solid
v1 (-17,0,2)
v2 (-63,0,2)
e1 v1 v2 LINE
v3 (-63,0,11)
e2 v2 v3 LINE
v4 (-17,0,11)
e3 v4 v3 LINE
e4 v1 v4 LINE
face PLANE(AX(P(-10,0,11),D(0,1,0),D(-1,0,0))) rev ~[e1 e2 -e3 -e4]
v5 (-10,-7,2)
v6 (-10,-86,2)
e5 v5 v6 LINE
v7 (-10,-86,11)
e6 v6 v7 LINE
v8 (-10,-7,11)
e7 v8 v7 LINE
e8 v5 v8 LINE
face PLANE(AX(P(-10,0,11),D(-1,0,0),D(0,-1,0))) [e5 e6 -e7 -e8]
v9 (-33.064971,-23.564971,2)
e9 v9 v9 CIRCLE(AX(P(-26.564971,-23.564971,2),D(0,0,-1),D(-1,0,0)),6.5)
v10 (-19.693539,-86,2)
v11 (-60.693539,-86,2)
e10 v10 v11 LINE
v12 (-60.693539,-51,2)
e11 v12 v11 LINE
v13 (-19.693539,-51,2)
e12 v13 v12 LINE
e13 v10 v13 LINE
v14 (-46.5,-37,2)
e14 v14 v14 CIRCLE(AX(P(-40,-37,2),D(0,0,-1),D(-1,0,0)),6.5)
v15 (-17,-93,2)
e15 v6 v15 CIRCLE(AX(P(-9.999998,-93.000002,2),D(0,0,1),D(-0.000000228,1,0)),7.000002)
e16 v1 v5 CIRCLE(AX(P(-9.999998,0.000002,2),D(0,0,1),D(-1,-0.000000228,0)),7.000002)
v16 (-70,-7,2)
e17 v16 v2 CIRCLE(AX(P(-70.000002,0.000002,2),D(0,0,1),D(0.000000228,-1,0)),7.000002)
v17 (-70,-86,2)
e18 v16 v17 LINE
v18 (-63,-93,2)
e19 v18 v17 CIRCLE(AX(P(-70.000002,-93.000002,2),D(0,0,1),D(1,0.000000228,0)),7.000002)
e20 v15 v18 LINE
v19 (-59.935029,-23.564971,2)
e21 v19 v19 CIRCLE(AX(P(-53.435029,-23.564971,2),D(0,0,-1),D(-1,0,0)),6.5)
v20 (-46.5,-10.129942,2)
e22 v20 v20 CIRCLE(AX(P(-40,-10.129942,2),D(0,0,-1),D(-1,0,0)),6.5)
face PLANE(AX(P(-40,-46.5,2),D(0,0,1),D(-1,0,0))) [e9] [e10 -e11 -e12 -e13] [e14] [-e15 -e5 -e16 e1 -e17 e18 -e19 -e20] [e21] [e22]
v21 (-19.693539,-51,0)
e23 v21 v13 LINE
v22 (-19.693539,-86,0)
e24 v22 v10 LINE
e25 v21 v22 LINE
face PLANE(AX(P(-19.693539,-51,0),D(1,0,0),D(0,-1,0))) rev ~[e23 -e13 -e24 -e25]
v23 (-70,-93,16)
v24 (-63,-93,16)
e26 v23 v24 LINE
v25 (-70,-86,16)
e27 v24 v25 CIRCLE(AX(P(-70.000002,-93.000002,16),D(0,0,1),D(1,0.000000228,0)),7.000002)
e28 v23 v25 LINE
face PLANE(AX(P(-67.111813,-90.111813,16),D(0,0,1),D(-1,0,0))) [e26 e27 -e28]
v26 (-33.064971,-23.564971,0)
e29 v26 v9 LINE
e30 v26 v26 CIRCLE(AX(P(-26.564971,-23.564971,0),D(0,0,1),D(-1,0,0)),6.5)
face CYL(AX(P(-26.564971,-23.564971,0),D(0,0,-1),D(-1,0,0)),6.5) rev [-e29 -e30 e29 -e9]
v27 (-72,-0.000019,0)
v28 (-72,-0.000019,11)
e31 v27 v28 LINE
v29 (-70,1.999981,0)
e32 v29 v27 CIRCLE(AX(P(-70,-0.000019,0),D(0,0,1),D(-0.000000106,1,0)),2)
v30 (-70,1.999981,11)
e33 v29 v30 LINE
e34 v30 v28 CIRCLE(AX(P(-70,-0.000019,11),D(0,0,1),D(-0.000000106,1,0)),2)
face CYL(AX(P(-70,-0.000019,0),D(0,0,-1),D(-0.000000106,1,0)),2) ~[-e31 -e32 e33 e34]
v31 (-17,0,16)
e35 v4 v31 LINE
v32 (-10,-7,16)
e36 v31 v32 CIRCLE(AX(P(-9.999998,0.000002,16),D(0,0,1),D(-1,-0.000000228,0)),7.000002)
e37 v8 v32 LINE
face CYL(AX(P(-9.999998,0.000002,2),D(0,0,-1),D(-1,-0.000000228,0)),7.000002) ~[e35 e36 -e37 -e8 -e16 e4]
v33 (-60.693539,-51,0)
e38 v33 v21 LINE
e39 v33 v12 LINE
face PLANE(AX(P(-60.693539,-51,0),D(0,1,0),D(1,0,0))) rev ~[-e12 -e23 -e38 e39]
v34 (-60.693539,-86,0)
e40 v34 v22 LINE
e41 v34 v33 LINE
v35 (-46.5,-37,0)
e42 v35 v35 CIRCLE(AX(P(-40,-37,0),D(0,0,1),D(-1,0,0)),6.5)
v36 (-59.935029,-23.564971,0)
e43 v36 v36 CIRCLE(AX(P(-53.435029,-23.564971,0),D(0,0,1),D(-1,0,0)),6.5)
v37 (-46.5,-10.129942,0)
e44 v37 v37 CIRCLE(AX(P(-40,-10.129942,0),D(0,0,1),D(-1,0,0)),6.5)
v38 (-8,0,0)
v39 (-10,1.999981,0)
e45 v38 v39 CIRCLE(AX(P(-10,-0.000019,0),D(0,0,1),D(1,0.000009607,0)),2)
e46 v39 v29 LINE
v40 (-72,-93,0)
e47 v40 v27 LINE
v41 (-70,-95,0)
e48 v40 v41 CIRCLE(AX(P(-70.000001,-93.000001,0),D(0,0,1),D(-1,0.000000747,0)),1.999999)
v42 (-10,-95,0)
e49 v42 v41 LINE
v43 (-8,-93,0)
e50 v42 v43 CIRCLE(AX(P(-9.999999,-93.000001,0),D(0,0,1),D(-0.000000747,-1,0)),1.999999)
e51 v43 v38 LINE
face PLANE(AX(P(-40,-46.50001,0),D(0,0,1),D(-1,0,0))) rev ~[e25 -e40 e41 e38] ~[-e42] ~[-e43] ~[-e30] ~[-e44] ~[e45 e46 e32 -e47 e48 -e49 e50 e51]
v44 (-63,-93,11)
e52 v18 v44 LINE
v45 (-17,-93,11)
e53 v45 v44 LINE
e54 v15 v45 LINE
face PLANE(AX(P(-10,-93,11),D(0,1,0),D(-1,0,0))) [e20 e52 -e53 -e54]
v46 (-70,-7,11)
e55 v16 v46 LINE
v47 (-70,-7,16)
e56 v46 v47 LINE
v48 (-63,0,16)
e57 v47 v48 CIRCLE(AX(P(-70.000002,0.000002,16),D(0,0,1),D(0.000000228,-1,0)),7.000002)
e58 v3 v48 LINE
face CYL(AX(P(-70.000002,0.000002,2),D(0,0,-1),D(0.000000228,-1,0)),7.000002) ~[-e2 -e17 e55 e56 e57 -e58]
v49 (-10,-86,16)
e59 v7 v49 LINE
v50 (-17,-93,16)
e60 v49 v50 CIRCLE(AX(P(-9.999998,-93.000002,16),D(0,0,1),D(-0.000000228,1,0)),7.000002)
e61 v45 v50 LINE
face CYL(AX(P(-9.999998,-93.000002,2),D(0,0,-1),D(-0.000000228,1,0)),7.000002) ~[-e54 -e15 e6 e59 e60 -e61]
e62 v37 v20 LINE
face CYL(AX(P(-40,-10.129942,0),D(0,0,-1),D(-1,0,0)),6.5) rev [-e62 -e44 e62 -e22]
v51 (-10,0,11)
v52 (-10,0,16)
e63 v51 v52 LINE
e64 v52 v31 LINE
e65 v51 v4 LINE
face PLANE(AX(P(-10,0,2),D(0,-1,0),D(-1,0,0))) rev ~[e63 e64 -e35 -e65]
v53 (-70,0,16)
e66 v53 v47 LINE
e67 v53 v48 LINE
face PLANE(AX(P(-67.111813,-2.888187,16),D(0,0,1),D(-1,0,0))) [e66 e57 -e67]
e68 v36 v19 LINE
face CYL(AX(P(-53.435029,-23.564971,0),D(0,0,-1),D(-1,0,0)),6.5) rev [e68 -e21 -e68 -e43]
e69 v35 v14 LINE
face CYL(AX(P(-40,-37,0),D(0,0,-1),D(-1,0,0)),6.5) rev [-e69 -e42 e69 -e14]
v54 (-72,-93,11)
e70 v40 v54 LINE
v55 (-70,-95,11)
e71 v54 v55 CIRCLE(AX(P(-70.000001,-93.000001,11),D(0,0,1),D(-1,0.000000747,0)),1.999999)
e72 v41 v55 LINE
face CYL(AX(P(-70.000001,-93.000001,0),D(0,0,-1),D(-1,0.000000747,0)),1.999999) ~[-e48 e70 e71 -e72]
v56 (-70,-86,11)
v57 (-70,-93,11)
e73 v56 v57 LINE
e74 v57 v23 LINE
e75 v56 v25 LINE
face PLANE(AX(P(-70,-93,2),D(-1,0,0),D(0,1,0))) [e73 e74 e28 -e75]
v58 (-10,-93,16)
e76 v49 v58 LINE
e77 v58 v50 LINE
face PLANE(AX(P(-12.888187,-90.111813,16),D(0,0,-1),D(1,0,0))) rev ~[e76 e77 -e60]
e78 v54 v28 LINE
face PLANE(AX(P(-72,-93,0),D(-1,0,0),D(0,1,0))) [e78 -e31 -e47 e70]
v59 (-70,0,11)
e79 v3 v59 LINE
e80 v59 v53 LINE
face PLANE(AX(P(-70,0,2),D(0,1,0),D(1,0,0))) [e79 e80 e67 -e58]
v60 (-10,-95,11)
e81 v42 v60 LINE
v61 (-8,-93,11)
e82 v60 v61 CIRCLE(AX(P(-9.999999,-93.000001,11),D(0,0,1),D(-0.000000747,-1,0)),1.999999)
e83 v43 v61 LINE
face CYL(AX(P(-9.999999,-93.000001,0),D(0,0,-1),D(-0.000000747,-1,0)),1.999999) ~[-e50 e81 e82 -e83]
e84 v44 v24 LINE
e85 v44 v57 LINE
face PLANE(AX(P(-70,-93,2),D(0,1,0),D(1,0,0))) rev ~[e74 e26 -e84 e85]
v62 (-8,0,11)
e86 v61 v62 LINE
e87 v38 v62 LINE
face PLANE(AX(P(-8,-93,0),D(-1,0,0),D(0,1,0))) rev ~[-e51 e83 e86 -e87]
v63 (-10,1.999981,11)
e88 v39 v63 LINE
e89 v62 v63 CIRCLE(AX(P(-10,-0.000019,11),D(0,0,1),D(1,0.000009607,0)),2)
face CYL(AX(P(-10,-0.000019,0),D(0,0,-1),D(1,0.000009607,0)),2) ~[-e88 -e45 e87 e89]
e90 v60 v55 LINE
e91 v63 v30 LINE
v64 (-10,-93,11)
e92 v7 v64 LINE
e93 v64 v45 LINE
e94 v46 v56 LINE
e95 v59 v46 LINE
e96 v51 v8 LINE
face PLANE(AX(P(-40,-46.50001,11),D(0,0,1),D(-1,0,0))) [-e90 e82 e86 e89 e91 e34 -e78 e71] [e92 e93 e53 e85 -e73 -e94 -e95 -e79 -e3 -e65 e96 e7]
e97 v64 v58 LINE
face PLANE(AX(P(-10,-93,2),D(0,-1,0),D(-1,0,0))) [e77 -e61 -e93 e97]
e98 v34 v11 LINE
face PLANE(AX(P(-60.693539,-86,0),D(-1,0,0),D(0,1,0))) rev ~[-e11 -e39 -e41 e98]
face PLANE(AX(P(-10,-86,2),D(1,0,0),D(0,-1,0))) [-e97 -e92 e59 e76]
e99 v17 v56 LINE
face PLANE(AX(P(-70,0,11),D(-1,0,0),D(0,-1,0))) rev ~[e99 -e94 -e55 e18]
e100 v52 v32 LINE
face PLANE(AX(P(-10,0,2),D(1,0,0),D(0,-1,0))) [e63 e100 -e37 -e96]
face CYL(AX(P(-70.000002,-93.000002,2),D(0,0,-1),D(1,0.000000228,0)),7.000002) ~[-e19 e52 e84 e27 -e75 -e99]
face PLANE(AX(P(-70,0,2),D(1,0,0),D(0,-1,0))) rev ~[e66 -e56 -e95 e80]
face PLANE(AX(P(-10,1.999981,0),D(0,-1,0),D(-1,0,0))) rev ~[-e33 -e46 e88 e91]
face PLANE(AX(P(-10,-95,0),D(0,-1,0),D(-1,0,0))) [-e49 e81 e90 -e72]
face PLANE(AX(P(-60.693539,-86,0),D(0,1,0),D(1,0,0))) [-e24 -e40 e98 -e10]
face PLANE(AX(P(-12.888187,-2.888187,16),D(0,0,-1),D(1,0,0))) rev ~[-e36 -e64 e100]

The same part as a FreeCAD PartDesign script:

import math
import FreeCAD as App
import Part
import Sketcher


def add_polygon(sketch, points):
    """Adds a closed chain of lines whose ends are joined by coincident constraints."""
    first, n = sketch.GeometryCount, len(points)
    for a, b in zip(points, points[1:] + points[:1]):
        sketch.addGeometry(Part.LineSegment(App.Vector(*a, 0), App.Vector(*b, 0)), False)
    for i in range(n):
        sketch.addConstraint(Sketcher.Constraint("Coincident", first + i, 2, first + (i + 1) % n, 1))

doc = App.newDocument("Part")
body = doc.addObject("PartDesign::Body", "Body")

# Sketch on XY plane
sketch1 = body.newObject("Sketcher::SketchObject", "Sketch")
sketch1.AttachmentSupport = (doc.getObject("XY_Plane"), [""])
sketch1.MapMode = "FlatFace"
sketch1.addGeometry([
    Part.ArcOfCircle(Part.Circle(App.Vector(0, 0, 0), App.Vector(0, 0, 1), 2), math.radians(90), math.radians(180)),  # 0
    Part.LineSegment(App.Vector(-2, 0, 0), App.Vector(-2, -93, 0)),  # 1
    Part.ArcOfCircle(Part.Circle(App.Vector(0, -93, 0), App.Vector(0, 0, 1), 2), math.radians(-180), math.radians(-90)),  # 2
    Part.LineSegment(App.Vector(0, -95, 0), App.Vector(60, -95, 0)),  # 3
    Part.ArcOfCircle(Part.Circle(App.Vector(60, -93, 0), App.Vector(0, 0, 1), 2), math.radians(-90), math.radians(0)),  # 4
    Part.LineSegment(App.Vector(62, -93, 0), App.Vector(62, 0, 0)),  # 5
    Part.ArcOfCircle(Part.Circle(App.Vector(60, 0, 0), App.Vector(0, 0, 1), 2), math.radians(0), math.radians(90)),  # 6
    Part.LineSegment(App.Vector(60, 2, 0), App.Vector(0, 2, 0)),  # 7
], False)
sketch1.addConstraint([
    Sketcher.Constraint("Tangent", 0, 2, 1, 1),
    Sketcher.Constraint("Coincident", 1, 2, 2, 1),
    Sketcher.Constraint("Tangent", 2, 2, 3, 1),
    Sketcher.Constraint("Tangent", 3, 2, 4, 1),
    Sketcher.Constraint("Tangent", 4, 2, 5, 1),
    Sketcher.Constraint("Tangent", 5, 2, 6, 1),
    Sketcher.Constraint("Tangent", 6, 2, 7, 1),
    Sketcher.Constraint("Tangent", 7, 2, 0, 1),
    Sketcher.Constraint("Vertical", 1),
    Sketcher.Constraint("Horizontal", 3),
    Sketcher.Constraint("Vertical", 5),
    Sketcher.Constraint("Horizontal", 7),
    Sketcher.Constraint("Coincident", 0, 3, -1, 1),
    Sketcher.Constraint("Equal", 0, 2),
    Sketcher.Constraint("Equal", 2, 4),
    Sketcher.Constraint("Equal", 4, 6),
    Sketcher.Constraint("Radius", 0, 1.999999),
    Sketcher.Constraint("DistanceX", 3, 1, 3, 2, 60.0),
    Sketcher.Constraint("DistanceY", 1, 2, 1, 1, 93.0),
    Sketcher.Constraint("DistanceY", 5, 1, 5, 2, 92.999981),
])
pad1 = body.newObject("PartDesign::Pad", "Pad")
pad1.Profile = sketch1
pad1.Length = 11

# Sketch on XY plane
sketch2 = body.newObject("Sketcher::SketchObject", "Sketch001")
sketch2.AttachmentSupport = (doc.getObject("XY_Plane"), [""])
sketch2.MapMode = "FlatFace"
sketch2.AttachmentOffset = App.Placement(App.Vector(0, 0, 11), App.Rotation())
add_polygon(sketch2, [(0, 0), (0, -93), (60, -93), (60, 0)])  # lines 0-3
sketch2.addConstraint([
    Sketcher.Constraint("Vertical", 0),
    Sketcher.Constraint("Horizontal", 1),
    Sketcher.Constraint("Vertical", 2),
    Sketcher.Constraint("Horizontal", 3),
    Sketcher.Constraint("Coincident", 3, 2, -1, 1),
    Sketcher.Constraint("DistanceX", 1, 1, 1, 2, 60.0),
    Sketcher.Constraint("DistanceY", 0, 2, 0, 1, 93.0),
])
pocket1 = body.newObject("PartDesign::Pocket", "Pocket")
pocket1.Profile = sketch2
pocket1.Length = 9

# Sketch on XY plane
sketch3 = body.newObject("Sketcher::SketchObject", "Sketch002")
sketch3.AttachmentSupport = (doc.getObject("XY_Plane"), [""])
sketch3.MapMode = "FlatFace"
sketch3.addGeometry(Part.Circle(App.Vector(30, -56, 0), App.Vector(0, 0, 1), 6), False)  # 0
sketch3.addGeometry(Part.Circle(App.Vector(43, -69, 0), App.Vector(0, 0, 1), 6), False)  # 1
sketch3.addGeometry(Part.Circle(App.Vector(17, -69, 0), App.Vector(0, 0, 1), 6), False)  # 2
sketch3.addGeometry(Part.Circle(App.Vector(30, -83, 0), App.Vector(0, 0, 1), 6), False)  # 3
add_polygon(sketch3, [(51, -42), (51, -7), (10, -7), (10, -42)])  # lines 4-7
sketch3.addConstraint([
    Sketcher.Constraint("Vertical", 4),
    Sketcher.Constraint("Horizontal", 5),
    Sketcher.Constraint("Vertical", 6),
    Sketcher.Constraint("Horizontal", 7),
    Sketcher.Constraint("Equal", 0, 1),
    Sketcher.Constraint("Equal", 1, 2),
    Sketcher.Constraint("Equal", 2, 3),
    Sketcher.Constraint("Horizontal", 1, 3, 2, 3),
    Sketcher.Constraint("Vertical", 0, 3, 3, 3),
    Sketcher.Constraint("Diameter", 0, 13.0),
    Sketcher.Constraint("DistanceX", 5, 2, 5, 1, 41.0),
    Sketcher.Constraint("DistanceY", 4, 1, 4, 2, 35.0),
    Sketcher.Constraint("DistanceX", -1, 1, 0, 3, 30.0),
    Sketcher.Constraint("DistanceY", 0, 3, -1, 1, 56.0),
    Sketcher.Constraint("DistanceY", 4, 2, -1, 1, 7.0),
    Sketcher.Constraint("DistanceX", -1, 1, 1, 3, 43.435029),
    Sketcher.Constraint("DistanceY", 1, 3, -1, 1, 69.435029),
    Sketcher.Constraint("DistanceX", -1, 1, 2, 3, 16.564971),
    Sketcher.Constraint("DistanceY", 3, 3, -1, 1, 82.870058),
    Sketcher.Constraint("DistanceX", -1, 1, 4, 2, 50.693539),
])
pocket2 = body.newObject("PartDesign::Pocket", "Pocket001")
pocket2.Profile = sketch3
pocket2.Length = 5
pocket2.Reversed = True

# Sketch on XY plane
sketch4 = body.newObject("Sketcher::SketchObject", "Sketch003")
sketch4.AttachmentSupport = (doc.getObject("XY_Plane"), [""])
sketch4.MapMode = "FlatFace"
sketch4.AttachmentOffset = App.Placement(App.Vector(0, 0, 2), App.Rotation())
sketch4.addGeometry([
    Part.LineSegment(App.Vector(7, 0, 0), App.Vector(0, 0, 0)),  # 0
    Part.LineSegment(App.Vector(0, 0, 0), App.Vector(0, -7, 0)),  # 1
    Part.ArcOfCircle(Part.Circle(App.Vector(0, 0, 0), App.Vector(0, 0, 1), 7), math.radians(-90), math.radians(0)),  # 2
    Part.LineSegment(App.Vector(60, 0, 0), App.Vector(53, 0, 0)),  # 3
    Part.ArcOfCircle(Part.Circle(App.Vector(60, 0, 0), App.Vector(0, 0, 1), 7), math.radians(-180), math.radians(-90)),  # 4
    Part.LineSegment(App.Vector(60, -7, 0), App.Vector(60, 0, 0)),  # 5
    Part.LineSegment(App.Vector(0, -86, 0), App.Vector(0, -93, 0)),  # 6
    Part.LineSegment(App.Vector(0, -93, 0), App.Vector(7, -93, 0)),  # 7
    Part.ArcOfCircle(Part.Circle(App.Vector(0, -93, 0), App.Vector(0, 0, 1), 7), math.radians(0), math.radians(90)),  # 8
    Part.LineSegment(App.Vector(60, -93, 0), App.Vector(60, -86, 0)),  # 9
    Part.ArcOfCircle(Part.Circle(App.Vector(60, -93, 0), App.Vector(0, 0, 1), 7), math.radians(90), math.radians(180)),  # 10
    Part.LineSegment(App.Vector(53, -93, 0), App.Vector(60, -93, 0)),  # 11
], False)
sketch4.addConstraint([
    Sketcher.Constraint("Coincident", 0, 2, 1, 1),
    Sketcher.Constraint("Coincident", 1, 2, 2, 1),
    Sketcher.Constraint("Coincident", 2, 2, 0, 1),
    Sketcher.Constraint("Coincident", 3, 2, 4, 1),
    Sketcher.Constraint("Coincident", 4, 2, 5, 1),
    Sketcher.Constraint("Coincident", 5, 2, 3, 1),
    Sketcher.Constraint("Coincident", 6, 2, 7, 1),
    Sketcher.Constraint("Coincident", 7, 2, 8, 1),
    Sketcher.Constraint("Coincident", 8, 2, 6, 1),
    Sketcher.Constraint("Coincident", 9, 2, 10, 1),
    Sketcher.Constraint("Coincident", 10, 2, 11, 1),
    Sketcher.Constraint("Coincident", 11, 2, 9, 1),
    Sketcher.Constraint("Horizontal", 0),
    Sketcher.Constraint("Vertical", 1),
    Sketcher.Constraint("Horizontal", 3),
    Sketcher.Constraint("Vertical", 5),
    Sketcher.Constraint("Vertical", 6),
    Sketcher.Constraint("Horizontal", 7),
    Sketcher.Constraint("Vertical", 9),
    Sketcher.Constraint("Horizontal", 11),
    Sketcher.Constraint("Coincident", 2, 3, -1, 1),
    Sketcher.Constraint("Coincident", 0, 2, -1, 1),
    Sketcher.Constraint("Coincident", 5, 2, 4, 3),
    Sketcher.Constraint("Coincident", 6, 2, 8, 3),
    Sketcher.Constraint("Coincident", 11, 2, 10, 3),
    Sketcher.Constraint("Equal", 2, 4),
    Sketcher.Constraint("Equal", 4, 8),
    Sketcher.Constraint("Equal", 8, 10),
    Sketcher.Constraint("PointOnObject", 4, 3, -1),
    Sketcher.Constraint("PointOnObject", 8, 3, -2),
    Sketcher.Constraint("Horizontal", 8, 3, 10, 3),
    Sketcher.Constraint("Vertical", 4, 3, 10, 3),
    Sketcher.Constraint("Radius", 2, 7.000002),
    Sketcher.Constraint("DistanceX", -1, 1, 4, 3, 60.000002),
    Sketcher.Constraint("DistanceY", 8, 3, -1, 1, 93.000002),
])
pad2 = body.newObject("PartDesign::Pad", "Pad001")
pad2.Profile = sketch4
pad2.Length = 14
body2 = doc.addObject("PartDesign::Body", "Body001")
doc.recompute()

body.Placement = App.Placement(App.Vector(-10, -93, 0), App.Rotation(App.Vector(0, 0, 1), 180))
boolean = body2.newObject("PartDesign::Boolean", "Boolean")
boolean.Type = "Fuse"
boolean.addObjects([body])

doc.recompute()
